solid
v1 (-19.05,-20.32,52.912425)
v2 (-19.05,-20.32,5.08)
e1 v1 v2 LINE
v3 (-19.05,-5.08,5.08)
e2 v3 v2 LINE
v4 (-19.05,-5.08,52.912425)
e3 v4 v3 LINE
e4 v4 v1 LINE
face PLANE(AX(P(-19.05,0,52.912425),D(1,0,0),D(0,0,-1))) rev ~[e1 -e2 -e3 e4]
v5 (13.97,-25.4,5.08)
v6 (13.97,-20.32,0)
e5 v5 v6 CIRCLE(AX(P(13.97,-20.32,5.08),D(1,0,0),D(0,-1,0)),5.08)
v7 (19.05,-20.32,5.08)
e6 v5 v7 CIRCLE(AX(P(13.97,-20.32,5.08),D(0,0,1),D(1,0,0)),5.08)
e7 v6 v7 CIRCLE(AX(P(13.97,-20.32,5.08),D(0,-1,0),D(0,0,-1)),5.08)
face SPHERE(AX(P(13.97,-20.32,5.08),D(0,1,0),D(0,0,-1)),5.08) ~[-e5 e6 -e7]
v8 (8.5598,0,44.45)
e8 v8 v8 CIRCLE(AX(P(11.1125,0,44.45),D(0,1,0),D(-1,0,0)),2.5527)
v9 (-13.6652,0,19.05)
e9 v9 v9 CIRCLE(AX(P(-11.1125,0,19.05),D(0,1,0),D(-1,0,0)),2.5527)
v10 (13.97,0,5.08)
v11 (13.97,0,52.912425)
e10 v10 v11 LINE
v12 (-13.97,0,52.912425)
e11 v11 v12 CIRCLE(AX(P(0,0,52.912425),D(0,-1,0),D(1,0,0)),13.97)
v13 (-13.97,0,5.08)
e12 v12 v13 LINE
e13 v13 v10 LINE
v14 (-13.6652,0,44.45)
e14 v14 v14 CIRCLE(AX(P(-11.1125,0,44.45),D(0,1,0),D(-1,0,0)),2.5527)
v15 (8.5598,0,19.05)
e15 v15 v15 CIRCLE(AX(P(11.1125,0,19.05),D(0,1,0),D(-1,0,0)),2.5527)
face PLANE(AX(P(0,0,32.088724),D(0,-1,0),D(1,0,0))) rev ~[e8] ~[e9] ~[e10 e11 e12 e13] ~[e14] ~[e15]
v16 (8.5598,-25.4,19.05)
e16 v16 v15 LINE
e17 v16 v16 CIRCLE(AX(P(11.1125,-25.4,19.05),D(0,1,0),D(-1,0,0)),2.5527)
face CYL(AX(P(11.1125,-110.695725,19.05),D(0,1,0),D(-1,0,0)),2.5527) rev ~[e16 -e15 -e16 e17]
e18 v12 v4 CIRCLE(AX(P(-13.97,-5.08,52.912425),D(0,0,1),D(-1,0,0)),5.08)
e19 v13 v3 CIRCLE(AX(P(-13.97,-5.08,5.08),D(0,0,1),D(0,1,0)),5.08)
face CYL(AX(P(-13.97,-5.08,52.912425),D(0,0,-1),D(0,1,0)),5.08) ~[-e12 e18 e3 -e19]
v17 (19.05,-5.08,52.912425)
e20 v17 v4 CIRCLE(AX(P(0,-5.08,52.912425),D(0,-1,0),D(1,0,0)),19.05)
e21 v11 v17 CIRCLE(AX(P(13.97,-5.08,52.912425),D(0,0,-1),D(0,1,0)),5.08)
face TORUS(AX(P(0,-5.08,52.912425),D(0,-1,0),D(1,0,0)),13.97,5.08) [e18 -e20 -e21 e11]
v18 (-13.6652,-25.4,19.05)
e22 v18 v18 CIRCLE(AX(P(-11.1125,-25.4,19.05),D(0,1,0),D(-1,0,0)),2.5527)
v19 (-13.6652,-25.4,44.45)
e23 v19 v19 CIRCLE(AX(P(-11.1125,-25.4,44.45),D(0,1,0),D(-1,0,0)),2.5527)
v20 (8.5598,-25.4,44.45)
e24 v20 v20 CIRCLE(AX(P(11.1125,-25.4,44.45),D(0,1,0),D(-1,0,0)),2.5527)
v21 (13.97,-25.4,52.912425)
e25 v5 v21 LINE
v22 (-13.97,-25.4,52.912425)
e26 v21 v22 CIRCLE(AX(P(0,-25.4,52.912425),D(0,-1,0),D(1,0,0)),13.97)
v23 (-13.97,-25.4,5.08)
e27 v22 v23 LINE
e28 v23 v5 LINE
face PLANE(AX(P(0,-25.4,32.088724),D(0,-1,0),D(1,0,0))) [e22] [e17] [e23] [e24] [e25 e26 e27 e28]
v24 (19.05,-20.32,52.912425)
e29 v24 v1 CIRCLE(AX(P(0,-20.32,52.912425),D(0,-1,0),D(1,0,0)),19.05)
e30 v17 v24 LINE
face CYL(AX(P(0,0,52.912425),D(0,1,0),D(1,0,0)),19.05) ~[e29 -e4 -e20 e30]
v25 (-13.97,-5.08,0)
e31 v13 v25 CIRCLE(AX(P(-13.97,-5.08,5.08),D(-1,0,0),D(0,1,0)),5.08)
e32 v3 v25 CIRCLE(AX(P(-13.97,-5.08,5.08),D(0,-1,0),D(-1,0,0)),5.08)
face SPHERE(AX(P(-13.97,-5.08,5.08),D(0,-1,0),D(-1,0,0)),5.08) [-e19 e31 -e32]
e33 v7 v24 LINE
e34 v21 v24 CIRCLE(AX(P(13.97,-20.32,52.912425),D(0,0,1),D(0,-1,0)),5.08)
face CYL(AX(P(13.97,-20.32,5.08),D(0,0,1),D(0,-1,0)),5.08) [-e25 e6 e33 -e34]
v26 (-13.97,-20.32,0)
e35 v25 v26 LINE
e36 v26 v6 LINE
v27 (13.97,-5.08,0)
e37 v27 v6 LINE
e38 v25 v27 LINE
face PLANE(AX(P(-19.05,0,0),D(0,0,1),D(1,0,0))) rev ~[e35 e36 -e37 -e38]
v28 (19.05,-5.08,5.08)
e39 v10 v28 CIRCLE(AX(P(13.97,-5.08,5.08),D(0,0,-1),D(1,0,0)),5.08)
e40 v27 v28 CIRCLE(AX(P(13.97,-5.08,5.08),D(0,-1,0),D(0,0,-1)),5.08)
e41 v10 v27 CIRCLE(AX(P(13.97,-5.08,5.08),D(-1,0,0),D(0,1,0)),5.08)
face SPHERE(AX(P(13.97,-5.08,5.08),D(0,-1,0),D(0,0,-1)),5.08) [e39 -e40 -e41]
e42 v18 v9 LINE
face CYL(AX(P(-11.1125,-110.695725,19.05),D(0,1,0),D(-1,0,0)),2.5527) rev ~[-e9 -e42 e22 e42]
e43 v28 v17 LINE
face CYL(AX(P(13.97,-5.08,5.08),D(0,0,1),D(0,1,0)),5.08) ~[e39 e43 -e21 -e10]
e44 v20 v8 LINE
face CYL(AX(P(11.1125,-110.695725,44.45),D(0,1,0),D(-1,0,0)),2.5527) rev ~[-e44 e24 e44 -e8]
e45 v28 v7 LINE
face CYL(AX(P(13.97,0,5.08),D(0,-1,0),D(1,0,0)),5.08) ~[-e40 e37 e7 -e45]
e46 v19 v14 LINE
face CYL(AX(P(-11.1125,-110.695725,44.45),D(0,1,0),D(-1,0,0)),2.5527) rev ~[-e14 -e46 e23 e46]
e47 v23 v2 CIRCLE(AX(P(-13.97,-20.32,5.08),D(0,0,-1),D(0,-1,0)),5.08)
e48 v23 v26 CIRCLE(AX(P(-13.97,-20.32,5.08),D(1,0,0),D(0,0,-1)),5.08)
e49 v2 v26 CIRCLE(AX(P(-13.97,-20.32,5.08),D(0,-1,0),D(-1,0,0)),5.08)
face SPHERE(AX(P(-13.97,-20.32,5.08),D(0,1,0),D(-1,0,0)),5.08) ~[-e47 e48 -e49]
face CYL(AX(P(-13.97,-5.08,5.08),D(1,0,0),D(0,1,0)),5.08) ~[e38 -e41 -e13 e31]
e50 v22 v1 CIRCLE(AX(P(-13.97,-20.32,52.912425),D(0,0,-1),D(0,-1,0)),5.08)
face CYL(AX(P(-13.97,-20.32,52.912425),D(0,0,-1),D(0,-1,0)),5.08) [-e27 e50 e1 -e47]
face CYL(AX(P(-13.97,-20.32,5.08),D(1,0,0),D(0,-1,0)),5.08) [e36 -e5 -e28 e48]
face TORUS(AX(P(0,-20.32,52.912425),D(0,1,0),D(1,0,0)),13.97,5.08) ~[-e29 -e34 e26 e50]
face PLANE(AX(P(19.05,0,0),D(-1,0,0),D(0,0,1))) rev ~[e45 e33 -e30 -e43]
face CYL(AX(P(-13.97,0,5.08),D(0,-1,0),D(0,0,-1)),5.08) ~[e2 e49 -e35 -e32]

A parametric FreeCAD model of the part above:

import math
import FreeCAD as App
import Part
import Sketcher
from FreeCAD import Vector
Q = App.Units.Quantity


def edges_at(feature, points):
    """Names of the edges that pass closest to the given points."""
    edges = feature.Shape.Edges
    near = lambda p: min(range(len(edges)), key=lambda i: edges[i].distToShape(Part.Vertex(*p))[0])
    return sorted({f"Edge{near(p) + 1}" for p in points})

doc = App.newDocument("Part")
params = doc.addObject("Spreadsheet::Sheet", "Params")
for row, (alias, value) in enumerate([
    ("sketch1_radius", "0.75 in"),
    ("pad1_length", "1 in"),
    ("sketch2_diameter", "0.201 in"),
    ("hole_diameter", "0.201 in"),
    ("fillet_radius", "0.2 in"),
    ("fillet2_radius", "0.2 in"),
], start=1):
    params.set(f"A{row}", alias)
    params.set(f"B{row}", "=" + value)
    params.setAlias(f"B{row}", alias)

body = doc.addObject("PartDesign::Body", "Body")

# Sketch on XZ plane
sketch1 = body.newObject("Sketcher::SketchObject", "Sketch")
sketch1.AttachmentSupport = (doc.getObject("XZ_Plane"), [""])
sketch1.MapMode = "FlatFace"
sketch1.addGeometry(Part.LineSegment(Vector(19, 0, 0), Vector(19, 53, 0)), False)
sketch1.addGeometry(Part.ArcOfCircle(Part.Circle(Vector(0, 53, 0), Vector(0, 0, 1), 19), math.radians(0), math.radians(180)), False)
sketch1.addGeometry(Part.LineSegment(Vector(-19, 53, 0), Vector(-19, 0, 0)), False)
sketch1.addGeometry(Part.LineSegment(Vector(-19, 0, 0), Vector(19, 0, 0)), False)
sketch1.addConstraint(Sketcher.Constraint("Tangent", 0, 2, 1, 1))
sketch1.addConstraint(Sketcher.Constraint("Tangent", 1, 2, 2, 1))
sketch1.addConstraint(Sketcher.Constraint("Coincident", 2, 2, 3, 1))
sketch1.addConstraint(Sketcher.Constraint("Coincident", 3, 2, 0, 1))
sketch1.addConstraint(Sketcher.Constraint("Vertical", 0))
sketch1.addConstraint(Sketcher.Constraint("Vertical", 2))
sketch1.addConstraint(Sketcher.Constraint("Horizontal", 3))
sketch1.addConstraint(Sketcher.Constraint("Symmetric", 2, 2, 3, 2, -1, 1))
sketch1.addConstraint(Sketcher.Constraint("Radius", 1, Q("0.75 in")))
sketch1.addConstraint(Sketcher.Constraint("DistanceY", 0, 1, 0, 2, 52.912425))
sketch1.setExpression("Constraints[8]", "Params.sketch1_radius")
pad1 = body.newObject("PartDesign::Pad", "Pad")
pad1.Profile = sketch1
pad1.setExpression("Length", "Params.pad1_length")

# Sketch on XZ plane
sketch2 = body.newObject("Sketcher::SketchObject", "Sketch001")
sketch2.AttachmentSupport = (doc.getObject("XZ_Plane"), [""])
sketch2.MapMode = "FlatFace"
sketch2.AttachmentOffset = App.Placement(Vector(0, 0, 1 * 25.4), App.Rotation())
sketch2.addGeometry(Part.Circle(Vector(-11.1, 44.5, 0), Vector(0, 0, 1), 2.6), False)
sketch2.addGeometry(Part.Circle(Vector(11.1, 44.5, 0), Vector(0, 0, 1), 2.6), False)
sketch2.addGeometry(Part.Circle(Vector(11.1, 19.1, 0), Vector(0, 0, 1), 2.6), False)
sketch2.addGeometry(Part.Circle(Vector(-11.1, 19.1, 0), Vector(0, 0, 1), 2.6), False)
sketch2.addConstraint(Sketcher.Constraint("Equal", 0, 1))
sketch2.addConstraint(Sketcher.Constraint("Equal", 1, 2))
sketch2.addConstraint(Sketcher.Constraint("Equal", 2, 3))
sketch2.addConstraint(Sketcher.Constraint("Symmetric", 0, 3, 1, 3, -2))
sketch2.addConstraint(Sketcher.Constraint("Symmetric", 2, 3, 3, 3, -2))
sketch2.addConstraint(Sketcher.Constraint("Vertical", 1, 3, 2, 3))
sketch2.addConstraint(Sketcher.Constraint("Diameter", 0, Q("0.201 in")))
sketch2.addConstraint(Sketcher.Constraint("DistanceY", 2, 3, 1, 3, Q("1 in")))
sketch2.addConstraint(Sketcher.Constraint("DistanceY", -1, 1, 0, 3, Q("1.75 in")))
sketch2.addConstraint(Sketcher.Constraint("DistanceX", 0, 3, -1, 1, Q("0.4375 in")))
sketch2.setExpression("Constraints[6]", "Params.sketch2_diameter")
doc.recompute()
hole = body.newObject("PartDesign::Hole", "Hole")
hole.Profile = sketch2
hole.ThreadType = "None"
hole.setExpression("Diameter", "Params.hole_diameter")
hole.DepthType = "ThroughAll"
doc.recompute()

fillet = body.newObject("PartDesign::Fillet", "Fillet")
fillet.Base = (hole, edges_at(hole, [(-19.05, -12.7, 0), (19.05, -12.7, 0)]))
fillet.setExpression("Radius", "Params.fillet_radius")
doc.recompute()

fillet2 = body.newObject("PartDesign::Fillet", "Fillet001")
fillet2.Base = (fillet, edges_at(fillet, [
    (-19.05, -25.4, 28.996),
    (0, -25.4, 0),
    (0, 0, 0),
    (19.05, 0, 28.996),
]))
fillet2.setExpression("Radius", "Params.fillet2_radius")

doc.recompute()
